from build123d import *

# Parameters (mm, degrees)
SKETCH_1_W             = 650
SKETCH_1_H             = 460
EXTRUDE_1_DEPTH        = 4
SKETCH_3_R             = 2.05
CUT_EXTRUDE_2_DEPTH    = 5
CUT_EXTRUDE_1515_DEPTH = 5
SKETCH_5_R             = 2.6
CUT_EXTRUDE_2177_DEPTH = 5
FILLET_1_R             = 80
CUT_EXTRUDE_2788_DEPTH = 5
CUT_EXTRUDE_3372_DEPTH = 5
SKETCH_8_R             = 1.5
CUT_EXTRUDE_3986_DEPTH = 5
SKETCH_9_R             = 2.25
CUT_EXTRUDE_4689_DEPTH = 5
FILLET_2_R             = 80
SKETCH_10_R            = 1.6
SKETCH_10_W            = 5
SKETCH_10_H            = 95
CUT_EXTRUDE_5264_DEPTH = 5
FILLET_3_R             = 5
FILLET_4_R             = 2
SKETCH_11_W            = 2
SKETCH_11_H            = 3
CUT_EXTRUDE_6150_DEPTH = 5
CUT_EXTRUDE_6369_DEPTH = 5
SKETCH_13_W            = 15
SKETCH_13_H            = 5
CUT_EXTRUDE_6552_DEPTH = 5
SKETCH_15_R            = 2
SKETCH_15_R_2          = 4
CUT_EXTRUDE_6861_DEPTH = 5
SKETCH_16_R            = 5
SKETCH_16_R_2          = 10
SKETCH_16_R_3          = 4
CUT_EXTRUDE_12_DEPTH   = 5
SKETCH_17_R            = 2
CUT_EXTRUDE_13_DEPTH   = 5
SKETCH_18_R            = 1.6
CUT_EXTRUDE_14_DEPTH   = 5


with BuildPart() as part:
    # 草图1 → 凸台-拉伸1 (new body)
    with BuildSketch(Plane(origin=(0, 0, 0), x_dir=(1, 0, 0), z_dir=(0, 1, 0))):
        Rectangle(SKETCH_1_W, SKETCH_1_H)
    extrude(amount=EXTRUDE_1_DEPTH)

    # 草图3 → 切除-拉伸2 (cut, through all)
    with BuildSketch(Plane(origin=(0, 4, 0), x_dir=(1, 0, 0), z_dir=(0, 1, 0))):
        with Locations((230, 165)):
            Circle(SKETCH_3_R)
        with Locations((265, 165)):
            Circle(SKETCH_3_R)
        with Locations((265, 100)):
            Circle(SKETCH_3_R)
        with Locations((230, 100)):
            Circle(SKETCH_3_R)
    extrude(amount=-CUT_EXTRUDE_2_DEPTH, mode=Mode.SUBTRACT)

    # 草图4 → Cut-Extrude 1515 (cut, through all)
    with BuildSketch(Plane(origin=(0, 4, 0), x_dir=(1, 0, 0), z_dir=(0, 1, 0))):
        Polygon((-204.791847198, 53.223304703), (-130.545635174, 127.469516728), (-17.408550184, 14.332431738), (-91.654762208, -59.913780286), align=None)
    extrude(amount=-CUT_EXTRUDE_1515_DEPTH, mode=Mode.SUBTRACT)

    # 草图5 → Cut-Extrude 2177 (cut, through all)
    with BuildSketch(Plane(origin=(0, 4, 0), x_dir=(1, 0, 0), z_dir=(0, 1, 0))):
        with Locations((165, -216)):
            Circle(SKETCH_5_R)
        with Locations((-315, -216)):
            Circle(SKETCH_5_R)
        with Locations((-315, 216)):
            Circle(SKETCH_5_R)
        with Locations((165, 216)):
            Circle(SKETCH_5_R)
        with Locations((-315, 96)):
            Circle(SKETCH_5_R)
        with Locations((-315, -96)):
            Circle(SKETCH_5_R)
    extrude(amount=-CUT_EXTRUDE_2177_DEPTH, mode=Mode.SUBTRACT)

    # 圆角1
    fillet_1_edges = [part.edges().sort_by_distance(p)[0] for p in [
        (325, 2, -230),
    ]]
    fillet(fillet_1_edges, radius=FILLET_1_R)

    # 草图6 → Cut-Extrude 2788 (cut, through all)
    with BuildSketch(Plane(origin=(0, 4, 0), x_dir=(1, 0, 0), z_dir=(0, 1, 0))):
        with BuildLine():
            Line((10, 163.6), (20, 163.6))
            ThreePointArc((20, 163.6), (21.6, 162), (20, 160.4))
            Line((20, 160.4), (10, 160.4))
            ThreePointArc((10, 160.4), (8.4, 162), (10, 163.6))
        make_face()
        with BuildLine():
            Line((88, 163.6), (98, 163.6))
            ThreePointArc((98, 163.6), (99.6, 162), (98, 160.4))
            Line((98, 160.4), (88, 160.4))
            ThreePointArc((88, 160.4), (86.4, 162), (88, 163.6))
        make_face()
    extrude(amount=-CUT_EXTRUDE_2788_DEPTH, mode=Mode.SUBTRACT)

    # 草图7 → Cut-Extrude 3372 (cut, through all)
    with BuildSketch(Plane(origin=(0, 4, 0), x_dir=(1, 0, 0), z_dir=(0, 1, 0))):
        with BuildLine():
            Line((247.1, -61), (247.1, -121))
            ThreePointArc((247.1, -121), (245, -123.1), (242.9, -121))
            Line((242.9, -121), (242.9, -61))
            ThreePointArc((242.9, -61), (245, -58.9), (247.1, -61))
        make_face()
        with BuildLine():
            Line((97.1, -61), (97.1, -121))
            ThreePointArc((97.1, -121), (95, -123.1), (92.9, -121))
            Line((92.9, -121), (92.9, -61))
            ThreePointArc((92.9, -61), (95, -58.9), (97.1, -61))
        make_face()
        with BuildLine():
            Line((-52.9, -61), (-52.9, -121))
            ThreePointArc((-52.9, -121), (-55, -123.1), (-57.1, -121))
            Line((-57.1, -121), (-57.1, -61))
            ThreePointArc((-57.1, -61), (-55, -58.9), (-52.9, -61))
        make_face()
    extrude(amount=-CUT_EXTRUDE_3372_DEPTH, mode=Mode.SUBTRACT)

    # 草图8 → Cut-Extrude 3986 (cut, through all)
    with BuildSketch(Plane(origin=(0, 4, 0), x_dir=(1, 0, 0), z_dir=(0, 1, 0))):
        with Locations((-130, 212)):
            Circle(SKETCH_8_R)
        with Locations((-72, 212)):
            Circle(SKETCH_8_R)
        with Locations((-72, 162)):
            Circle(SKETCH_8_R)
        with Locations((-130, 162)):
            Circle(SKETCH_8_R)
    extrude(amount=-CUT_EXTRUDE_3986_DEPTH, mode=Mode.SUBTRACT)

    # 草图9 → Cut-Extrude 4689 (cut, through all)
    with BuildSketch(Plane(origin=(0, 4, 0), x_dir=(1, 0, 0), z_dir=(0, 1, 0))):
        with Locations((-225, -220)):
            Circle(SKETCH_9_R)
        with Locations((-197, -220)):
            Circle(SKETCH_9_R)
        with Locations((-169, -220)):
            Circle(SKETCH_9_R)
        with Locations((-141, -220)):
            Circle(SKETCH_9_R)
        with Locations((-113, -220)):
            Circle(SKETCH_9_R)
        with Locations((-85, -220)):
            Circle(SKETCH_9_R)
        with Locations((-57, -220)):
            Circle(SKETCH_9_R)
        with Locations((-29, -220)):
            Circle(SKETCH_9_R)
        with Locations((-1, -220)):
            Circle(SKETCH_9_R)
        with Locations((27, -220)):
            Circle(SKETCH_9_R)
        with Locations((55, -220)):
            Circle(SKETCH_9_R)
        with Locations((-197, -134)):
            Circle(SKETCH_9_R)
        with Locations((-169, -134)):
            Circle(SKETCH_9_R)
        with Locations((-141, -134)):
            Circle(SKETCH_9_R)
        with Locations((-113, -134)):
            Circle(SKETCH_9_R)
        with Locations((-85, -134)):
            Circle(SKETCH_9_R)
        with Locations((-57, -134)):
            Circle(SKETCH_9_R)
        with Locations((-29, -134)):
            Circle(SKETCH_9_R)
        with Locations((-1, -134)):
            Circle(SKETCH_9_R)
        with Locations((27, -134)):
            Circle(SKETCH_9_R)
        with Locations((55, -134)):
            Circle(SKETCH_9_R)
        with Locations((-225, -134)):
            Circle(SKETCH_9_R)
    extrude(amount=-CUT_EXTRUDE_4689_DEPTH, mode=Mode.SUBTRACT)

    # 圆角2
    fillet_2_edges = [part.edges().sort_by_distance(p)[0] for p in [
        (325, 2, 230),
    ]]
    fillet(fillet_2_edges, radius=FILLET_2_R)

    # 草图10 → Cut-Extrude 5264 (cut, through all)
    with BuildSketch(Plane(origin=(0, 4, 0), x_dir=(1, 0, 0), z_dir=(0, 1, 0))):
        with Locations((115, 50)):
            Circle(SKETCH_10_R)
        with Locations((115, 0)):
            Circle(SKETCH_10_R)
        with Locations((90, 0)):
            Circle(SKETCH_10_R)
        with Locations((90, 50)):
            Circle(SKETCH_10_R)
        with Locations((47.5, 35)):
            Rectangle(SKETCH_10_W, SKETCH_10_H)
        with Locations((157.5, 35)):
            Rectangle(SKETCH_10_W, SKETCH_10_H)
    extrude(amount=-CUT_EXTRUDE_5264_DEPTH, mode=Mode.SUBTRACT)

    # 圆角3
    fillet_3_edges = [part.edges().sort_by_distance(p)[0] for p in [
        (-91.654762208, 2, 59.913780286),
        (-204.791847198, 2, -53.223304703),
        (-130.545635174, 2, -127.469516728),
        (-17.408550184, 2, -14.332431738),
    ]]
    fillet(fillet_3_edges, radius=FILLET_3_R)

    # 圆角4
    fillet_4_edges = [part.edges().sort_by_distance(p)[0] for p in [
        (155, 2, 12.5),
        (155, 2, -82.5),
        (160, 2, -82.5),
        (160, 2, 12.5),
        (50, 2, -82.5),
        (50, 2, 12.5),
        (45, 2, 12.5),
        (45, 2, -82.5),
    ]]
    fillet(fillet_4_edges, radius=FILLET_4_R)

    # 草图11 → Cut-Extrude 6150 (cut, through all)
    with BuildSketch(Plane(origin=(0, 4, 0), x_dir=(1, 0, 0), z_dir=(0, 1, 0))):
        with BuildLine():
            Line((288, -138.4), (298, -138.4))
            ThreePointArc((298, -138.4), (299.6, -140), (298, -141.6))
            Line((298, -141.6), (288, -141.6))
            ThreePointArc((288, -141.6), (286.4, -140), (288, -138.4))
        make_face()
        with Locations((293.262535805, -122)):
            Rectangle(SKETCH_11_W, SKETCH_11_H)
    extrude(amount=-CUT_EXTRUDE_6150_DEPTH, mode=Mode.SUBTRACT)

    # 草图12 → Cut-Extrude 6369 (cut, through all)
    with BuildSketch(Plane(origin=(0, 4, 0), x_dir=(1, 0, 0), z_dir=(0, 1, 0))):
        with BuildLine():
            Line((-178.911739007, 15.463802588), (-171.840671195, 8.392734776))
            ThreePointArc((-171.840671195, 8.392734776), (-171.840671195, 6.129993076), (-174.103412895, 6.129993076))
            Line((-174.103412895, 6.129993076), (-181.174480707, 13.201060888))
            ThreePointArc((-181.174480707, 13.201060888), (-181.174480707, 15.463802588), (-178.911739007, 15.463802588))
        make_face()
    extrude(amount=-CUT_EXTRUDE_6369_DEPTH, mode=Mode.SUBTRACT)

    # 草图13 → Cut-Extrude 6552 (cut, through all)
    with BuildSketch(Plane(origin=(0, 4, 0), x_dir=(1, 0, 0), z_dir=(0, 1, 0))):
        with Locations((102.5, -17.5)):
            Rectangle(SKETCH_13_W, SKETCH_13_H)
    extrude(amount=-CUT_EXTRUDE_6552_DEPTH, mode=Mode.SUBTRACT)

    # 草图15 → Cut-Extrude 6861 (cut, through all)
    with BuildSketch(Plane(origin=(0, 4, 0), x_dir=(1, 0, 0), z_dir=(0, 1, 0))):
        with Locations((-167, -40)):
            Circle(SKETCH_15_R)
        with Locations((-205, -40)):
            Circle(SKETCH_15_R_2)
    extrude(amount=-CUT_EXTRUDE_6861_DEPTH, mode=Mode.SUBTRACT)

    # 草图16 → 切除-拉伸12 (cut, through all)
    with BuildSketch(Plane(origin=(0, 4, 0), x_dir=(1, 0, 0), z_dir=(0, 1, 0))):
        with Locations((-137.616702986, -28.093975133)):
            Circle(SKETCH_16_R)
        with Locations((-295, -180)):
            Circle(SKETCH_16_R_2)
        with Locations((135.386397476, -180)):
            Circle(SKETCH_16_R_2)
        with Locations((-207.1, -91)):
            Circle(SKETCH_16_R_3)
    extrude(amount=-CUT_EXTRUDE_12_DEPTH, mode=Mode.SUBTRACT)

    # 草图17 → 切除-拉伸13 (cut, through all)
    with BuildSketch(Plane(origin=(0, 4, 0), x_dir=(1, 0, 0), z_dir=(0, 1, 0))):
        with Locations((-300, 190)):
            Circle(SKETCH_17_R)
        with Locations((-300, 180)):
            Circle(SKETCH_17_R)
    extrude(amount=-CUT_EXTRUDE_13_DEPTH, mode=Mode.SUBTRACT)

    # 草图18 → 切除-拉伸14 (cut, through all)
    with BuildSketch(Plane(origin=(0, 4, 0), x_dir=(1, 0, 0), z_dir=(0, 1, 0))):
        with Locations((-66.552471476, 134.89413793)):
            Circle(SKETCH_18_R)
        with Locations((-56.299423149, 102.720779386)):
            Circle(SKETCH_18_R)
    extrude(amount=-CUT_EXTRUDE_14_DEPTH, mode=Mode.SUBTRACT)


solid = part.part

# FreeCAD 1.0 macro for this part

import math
import FreeCAD as App
import Part
import Sketcher

V = App.Vector
Q = App.Units.Quantity


def edges_at(feature, points):
    """Names of the edges that pass closest to the given points."""
    edges = feature.Shape.Edges
    near = lambda p: min(range(len(edges)), key=lambda i: edges[i].distToShape(Part.Vertex(*p))[0])
    return sorted({f"Edge{near(p) + 1}" for p in points})


def add_polygon(sketch, points):
    """Adds a closed chain of lines whose ends are joined by coincident constraints."""
    first, n = sketch.GeometryCount, len(points)
    for a, b in zip(points, points[1:] + points[:1]):
        sketch.addGeometry(Part.LineSegment(App.Vector(*a, 0), App.Vector(*b, 0)), False)
    for i in range(n):
        sketch.addConstraint(Sketcher.Constraint("Coincident", first + i, 2, first + (i + 1) % n, 1))

doc = App.newDocument("Part")
params = doc.addObject("Spreadsheet::Sheet", "Params")
for row, (alias, value) in enumerate([
    ("sketch1_width", "650 mm"),
    ("sketch1_height", "460 mm"),
    ("pad1_length", "4 mm"),
    ("sketch2_diameter", "4.1 mm"),
    ("sketch3_length", "105 mm"),
    ("sketch3_length2", "160 mm"),
    ("sketch4_diameter", "5.2 mm"),
    ("fillet_radius", "80 mm"),
    ("sketch5_radius", "1.6 mm"),
    ("sketch5_width", "10 mm"),
    ("sketch6_radius", "2.1 mm"),
    ("sketch6_height", "60 mm"),
    ("sketch7_diameter", "3 mm"),
    ("sketch8_diameter", "4.5 mm"),
    ("fillet2_radius", "80 mm"),
    ("sketch9_diameter", "3.2 mm"),
    ("sketch9_width", "5 mm"),
    ("sketch9_height", "95 mm"),
    ("fillet3_radius", "5 mm"),
    ("fillet4_radius", "2 mm"),
    ("sketch10_radius", "1.6 mm"),
    ("sketch10_width", "10 mm"),
    ("sketch10_width2", "2 mm"),
    ("sketch10_height", "3 mm"),
    ("sketch11_radius", "1.6 mm"),
    ("sketch11_length", "10 mm"),
    ("sketch12_width", "15 mm"),
    ("sketch12_height", "5 mm"),
    ("sketch13_diameter", "4 mm"),
    ("sketch13_diameter2", "8 mm"),
    ("sketch14_diameter", "10 mm"),
    ("sketch14_diameter2", "20 mm"),
    ("sketch14_diameter3", "8 mm"),
    ("sketch15_diameter", "4 mm"),
    ("sketch16_diameter", "3.2 mm"),
], start=1):
    params.set(f"A{row}", alias)
    params.set(f"B{row}", "=" + value)
    params.setAlias(f"B{row}", alias)

body = doc.addObject("PartDesign::Body", "Body")

sketch1 = body.newObject("Sketcher::SketchObject", "Sketch")
sketch1.AttachmentSupport = (doc.getObject("XZ_Plane"), [""])
sketch1.MapMode = "FlatFace"
add_polygon(sketch1, [(-325, -230), (-325, 230), (325, 230), (325, -230)])
sketch1.addConstraint([
    Sketcher.Constraint("Vertical", 0),
    Sketcher.Constraint("Horizontal", 1),
    Sketcher.Constraint("Vertical", 2),
    Sketcher.Constraint("Horizontal", 3),
    Sketcher.Constraint("Symmetric", 0, 2, 2, 2, -1, 1),
    Sketcher.Constraint("DistanceX", 1, 1, 1, 2, 650.0),
    Sketcher.Constraint("DistanceY", 0, 1, 0, 2, 460.0),
])
sketch1.setExpression("Constraints[9]", "Params.sketch1_width")
sketch1.setExpression("Constraints[10]", "Params.sketch1_height")
pad1 = body.newObject("PartDesign::Pad", "Pad")
pad1.Profile = sketch1
pad1.setExpression("Length", "Params.pad1_length")
pad1.Reversed = True

sketch2 = body.newObject("Sketcher::SketchObject", "Sketch001")
sketch2.AttachmentSupport = (doc.getObject("XZ_Plane"), [""])
sketch2.MapMode = "FlatFace"
sketch2.AttachmentOffset = App.Placement(V(0, 0, -4), App.Rotation())
sketch2.addGeometry([
    Part.Circle(V(230, -165, 0), V(0, 0, 1), 2),
    Part.Circle(V(265, -165, 0), V(0, 0, 1), 2),
    Part.Circle(V(265, -100, 0), V(0, 0, 1), 2),
    Part.Circle(V(230, -100, 0), V(0, 0, 1), 2),
], False)
sketch2.addConstraint([
    Sketcher.Constraint("Equal", 0, 1),
    Sketcher.Constraint("Equal", 1, 2),
    Sketcher.Constraint("Equal", 2, 3),
    Sketcher.Constraint("Horizontal", 0, 3, 1, 3),
    Sketcher.Constraint("Horizontal", 2, 3, 3, 3),
    Sketcher.Constraint("Vertical", 1, 3, 2, 3),
    Sketcher.Constraint("Vertical", 0, 3, 3, 3),
    Sketcher.Constraint("Diameter", 0, 4.1),
    Sketcher.Constraint("DistanceX", -1, 1, 0, 3, 230.0),
    Sketcher.Constraint("DistanceY", 0, 3, -1, 1, 165.0),
    Sketcher.Constraint("DistanceX", -1, 1, 1, 3, 265.0),
    Sketcher.Constraint("DistanceY", 2, 3, -1, 1, 100.0),
])
sketch2.setExpression("Constraints[7]", "Params.sketch2_diameter")
pocket1 = body.newObject("PartDesign::Pocket", "Pocket")
pocket1.Profile = sketch2
pocket1.Type = "ThroughAll"
pocket1.Reversed = True

sketch3 = body.newObject("Sketcher::SketchObject", "Sketch002")
sketch3.AttachmentSupport = (doc.getObject("XZ_Plane"), [""])
sketch3.MapMode = "FlatFace"
sketch3.AttachmentOffset = App.Placement(V(0, 0, -4), App.Rotation())
add_polygon(sketch3, [(-131, -127), (-205, -53), (-92, 60), (-17, -14)])
sketch3.addConstraint([
    Sketcher.Constraint("Perpendicular", 0, 1),
    Sketcher.Constraint("Perpendicular", 1, 2),
    Sketcher.Constraint("Perpendicular", 2, 3),
    Sketcher.Constraint("Angle", 0, Q("135 deg")),
    Sketcher.Constraint("Distance", 0, 105.0),
    Sketcher.Constraint("Distance", 1, 160.0),
    Sketcher.Constraint("DistanceY", -1, 1, 1, 2, 59.91378),
    Sketcher.Constraint("DistanceX", 2, 2, -1, 1, 17.40855),
])
sketch3.setExpression("Constraints[8]", "Params.sketch3_length")
sketch3.setExpression("Constraints[9]", "Params.sketch3_length2")
pocket2 = body.newObject("PartDesign::Pocket", "Pocket001")
pocket2.Profile = sketch3
pocket2.Type = "ThroughAll"
pocket2.Reversed = True

sketch4 = body.newObject("Sketcher::SketchObject", "Sketch003")
sketch4.AttachmentSupport = (doc.getObject("XZ_Plane"), [""])
sketch4.MapMode = "FlatFace"
sketch4.AttachmentOffset = App.Placement(V(0, 0, -4), App.Rotation())
sketch4.addGeometry([
    Part.Circle(V(165, 216, 0), V(0, 0, 1), 2.6),
    Part.Circle(V(-315, 216, 0), V(0, 0, 1), 2.6),
    Part.Circle(V(-315, -216, 0), V(0, 0, 1), 2.6),
    Part.Circle(V(165, -216, 0), V(0, 0, 1), 2.6),
    Part.Circle(V(-315, -96, 0), V(0, 0, 1), 2.6),
    Part.Circle(V(-315, 96, 0), V(0, 0, 1), 2.6),
], False)
sketch4.addConstraint([
    Sketcher.Constraint("Equal", 0, 1),
    Sketcher.Constraint("Equal", 1, 2),
    Sketcher.Constraint("Equal", 2, 3),
    Sketcher.Constraint("Equal", 3, 4),
    Sketcher.Constraint("Equal", 4, 5),
    Sketcher.Constraint("Symmetric", 1, 3, 2, 3, -1),
    Sketcher.Constraint("Symmetric", 0, 3, 3, 3, -1),
    Sketcher.Constraint("Symmetric", 4, 3, 5, 3, -1),
    Sketcher.Constraint("Horizontal", 0, 3, 1, 3),
    Sketcher.Constraint("Vertical", 2, 3, 4, 3),
    Sketcher.Constraint("Diameter", 0, 5.2),
    Sketcher.Constraint("DistanceX", -1, 1, 0, 3, 165.0),
    Sketcher.Constraint("DistanceY", -1, 1, 0, 3, 216.0),
    Sketcher.Constraint("DistanceX", 1, 3, -1, 1, 315.0),
    Sketcher.Constraint("DistanceY", 4, 3, -1, 1, 96.0),
])
sketch4.setExpression("Constraints[10]", "Params.sketch4_diameter")
pocket3 = body.newObject("PartDesign::Pocket", "Pocket002")
pocket3.Profile = sketch4
pocket3.Type = "ThroughAll"
pocket3.Reversed = True
doc.recompute()

fillet = body.newObject("PartDesign::Fillet", "Fillet")
fillet.Base = (pocket3, edges_at(pocket3, [(325, 2, -230)]))
fillet.setExpression("Radius", "Params.fillet_radius")

sketch5 = body.newObject("Sketcher::SketchObject", "Sketch004")
sketch5.AttachmentSupport = (doc.getObject("XZ_Plane"), [""])
sketch5.MapMode = "FlatFace"
sketch5.AttachmentOffset = App.Placement(V(0, 0, -4), App.Rotation())
sketch5.addGeometry([
    Part.LineSegment(V(20, -163.6, 0), V(10, -163.6, 0)),
    Part.ArcOfCircle(Part.Circle(V(10, -162, 0), V(0, 0, 1), 1.6), math.radians(90), math.radians(270)),
    Part.LineSegment(V(10, -160.4, 0), V(20, -160.4, 0)),
    Part.ArcOfCircle(Part.Circle(V(20, -162, 0), V(0, 0, 1), 1.6), math.radians(-90), math.radians(90)),
    Part.LineSegment(V(98, -163.6, 0), V(88, -163.6, 0)),
    Part.ArcOfCircle(Part.Circle(V(88, -162, 0), V(0, 0, 1), 1.6), math.radians(90), math.radians(270)),
    Part.LineSegment(V(88, -160.4, 0), V(98, -160.4, 0)),
    Part.ArcOfCircle(Part.Circle(V(98, -162, 0), V(0, 0, 1), 1.6), math.radians(-90), math.radians(90)),
], False)
sketch5.addConstraint([
    Sketcher.Constraint("Tangent", 0, 2, 1, 2),
    Sketcher.Constraint("Tangent", 1, 1, 2, 1),
    Sketcher.Constraint("Tangent", 2, 2, 3, 2),
    Sketcher.Constraint("Tangent", 3, 1, 0, 1),
    Sketcher.Constraint("Tangent", 4, 2, 5, 2),
    Sketcher.Constraint("Tangent", 5, 1, 6, 1),
    Sketcher.Constraint("Tangent", 6, 2, 7, 2),
    Sketcher.Constraint("Tangent", 7, 1, 4, 1),
    Sketcher.Constraint("Horizontal", 0),
    Sketcher.Constraint("Horizontal", 2),
    Sketcher.Constraint("Horizontal", 4),
    Sketcher.Constraint("Horizontal", 6),
    Sketcher.Constraint("Equal", 3, 5),
    Sketcher.Constraint("Horizontal", 3, 3, 5, 3),
    Sketcher.Constraint("Equal", 2, 4),
    Sketcher.Constraint("Radius", 1, 1.6),
    Sketcher.Constraint("DistanceX", 0, 2, 0, 1, 10.0),
    Sketcher.Constraint("DistanceX", -1, 1, 1, 3, 10.0),
    Sketcher.Constraint("DistanceY", 1, 3, -1, 1, 162.0),
    Sketcher.Constraint("DistanceX", -1, 1, 5, 3, 88.0),
])
sketch5.setExpression("Constraints[15]", "Params.sketch5_radius")
sketch5.setExpression("Constraints[16]", "Params.sketch5_width")
pocket4 = body.newObject("PartDesign::Pocket", "Pocket003")
pocket4.Profile = sketch5
pocket4.Type = "ThroughAll"
pocket4.Reversed = True

sketch6 = body.newObject("Sketcher::SketchObject", "Sketch005")
sketch6.AttachmentSupport = (doc.getObject("XZ_Plane"), [""])
sketch6.MapMode = "FlatFace"
sketch6.AttachmentOffset = App.Placement(V(0, 0, -4), App.Rotation())
sketch6.addGeometry([
    Part.LineSegment(V(247.1, 121, 0), V(247.1, 61, 0)),
    Part.ArcOfCircle(Part.Circle(V(245, 61, 0), V(0, 0, 1), 2.1), math.radians(180), math.radians(360)),
    Part.LineSegment(V(242.9, 61, 0), V(242.9, 121, 0)),
    Part.ArcOfCircle(Part.Circle(V(245, 121, 0), V(0, 0, 1), 2.1), math.radians(0), math.radians(180)),
    Part.LineSegment(V(97.1, 121, 0), V(97.1, 61, 0)),
    Part.ArcOfCircle(Part.Circle(V(95, 61, 0), V(0, 0, 1), 2.1), math.radians(180), math.radians(360)),
    Part.LineSegment(V(92.9, 61, 0), V(92.9, 121, 0)),
    Part.ArcOfCircle(Part.Circle(V(95, 121, 0), V(0, 0, 1), 2.1), math.radians(0), math.radians(180)),
    Part.LineSegment(V(-52.9, 121, 0), V(-52.9, 61, 0)),
    Part.ArcOfCircle(Part.Circle(V(-55, 61, 0), V(0, 0, 1), 2.1), math.radians(180), math.radians(360)),
    Part.LineSegment(V(-57.1, 61, 0), V(-57.1, 121, 0)),
    Part.ArcOfCircle(Part.Circle(V(-55, 121, 0), V(0, 0, 1), 2.1), math.radians(0), math.radians(180)),
], False)
sketch6.addConstraint([
    Sketcher.Constraint("Tangent", 0, 2, 1, 2),
    Sketcher.Constraint("Tangent", 1, 1, 2, 1),
    Sketcher.Constraint("Tangent", 2, 2, 3, 2),
    Sketcher.Constraint("Tangent", 3, 1, 0, 1),
    Sketcher.Constraint("Tangent", 4, 2, 5, 2),
    Sketcher.Constraint("Tangent", 5, 1, 6, 1),
    Sketcher.Constraint("Tangent", 6, 2, 7, 2),
    Sketcher.Constraint("Tangent", 7, 1, 4, 1),
    Sketcher.Constraint("Tangent", 8, 2, 9, 2),
    Sketcher.Constraint("Tangent", 9, 1, 10, 1),
    Sketcher.Constraint("Tangent", 10, 2, 11, 2),
    Sketcher.Constraint("Tangent", 11, 1, 8, 1),
    Sketcher.Constraint("Vertical", 0),
    Sketcher.Constraint("Vertical", 2),
    Sketcher.Constraint("Vertical", 4),
    Sketcher.Constraint("Vertical", 6),
    Sketcher.Constraint("Vertical", 8),
    Sketcher.Constraint("Vertical", 10),
    Sketcher.Constraint("Equal", 3, 5),
    Sketcher.Constraint("Equal", 7, 9),
    Sketcher.Constraint("Horizontal", 1, 3, 5, 3),
    Sketcher.Constraint("Horizontal", 3, 3, 7, 3),
    Sketcher.Constraint("Horizontal", 5, 3, 9, 3),
    Sketcher.Constraint("Horizontal", 7, 3, 11, 3),
    Sketcher.Constraint("Radius", 1, 2.1),
    Sketcher.Constraint("DistanceY", 0, 2, 0, 1, 60.0),
    Sketcher.Constraint("DistanceX", -1, 1, 1, 3, 245.0),
    Sketcher.Constraint("DistanceY", -1, 1, 1, 3, 61.0),
    Sketcher.Constraint("DistanceX", -1, 1, 5, 3, 95.0),
    Sketcher.Constraint("DistanceX", 9, 3, -1, 1, 55.0),
])
sketch6.setExpression("Constraints[24]", "Params.sketch6_radius")
sketch6.setExpression("Constraints[25]", "Params.sketch6_height")
pocket5 = body.newObject("PartDesign::Pocket", "Pocket004")
pocket5.Profile = sketch6
pocket5.Type = "ThroughAll"
pocket5.Reversed = True

sketch7 = body.newObject("Sketcher::SketchObject", "Sketch006")
sketch7.AttachmentSupport = (doc.getObject("XZ_Plane"), [""])
sketch7.MapMode = "FlatFace"
sketch7.AttachmentOffset = App.Placement(V(0, 0, -4), App.Rotation())
sketch7.addGeometry([
    Part.Circle(V(-130, -212, 0), V(0, 0, 1), 1.5),
    Part.Circle(V(-72, -212, 0), V(0, 0, 1), 1.5),
    Part.Circle(V(-72, -162, 0), V(0, 0, 1), 1.5),
    Part.Circle(V(-130, -162, 0), V(0, 0, 1), 1.5),
], False)
sketch7.addConstraint([
    Sketcher.Constraint("Equal", 0, 1),
    Sketcher.Constraint("Equal", 1, 2),
    Sketcher.Constraint("Equal", 2, 3),
    Sketcher.Constraint("Horizontal", 0, 3, 1, 3),
    Sketcher.Constraint("Horizontal", 2, 3, 3, 3),
    Sketcher.Constraint("Vertical", 1, 3, 2, 3),
    Sketcher.Constraint("Vertical", 0, 3, 3, 3),
    Sketcher.Constraint("Diameter", 0, 3.0),
    Sketcher.Constraint("DistanceX", 0, 3, -1, 1, 130.0),
    Sketcher.Constraint("DistanceY", 0, 3, -1, 1, 212.0),
    Sketcher.Constraint("DistanceX", 1, 3, -1, 1, 72.0),
    Sketcher.Constraint("DistanceY", 2, 3, -1, 1, 162.0),
])
sketch7.setExpression("Constraints[7]", "Params.sketch7_diameter")
pocket6 = body.newObject("PartDesign::Pocket", "Pocket005")
pocket6.Profile = sketch7
pocket6.Type = "ThroughAll"
pocket6.Reversed = True

sketch8 = body.newObject("Sketcher::SketchObject", "Sketch007")
sketch8.AttachmentSupport = (doc.getObject("XZ_Plane"), [""])
sketch8.MapMode = "FlatFace"
sketch8.AttachmentOffset = App.Placement(V(0, 0, -4), App.Rotation())
sketch8.addGeometry([
    Part.Circle(V(-225, 220, 0), V(0, 0, 1), 2.2),
    Part.Circle(V(-197, 220, 0), V(0, 0, 1), 2.2),
    Part.Circle(V(-169, 220, 0), V(0, 0, 1), 2.2),
    Part.Circle(V(-141, 220, 0), V(0, 0, 1), 2.2),
    Part.Circle(V(-113, 220, 0), V(0, 0, 1), 2.2),
    Part.Circle(V(-85, 220, 0), V(0, 0, 1), 2.2),
    Part.Circle(V(-57, 220, 0), V(0, 0, 1), 2.2),
    Part.Circle(V(-29, 220, 0), V(0, 0, 1), 2.2),
    Part.Circle(V(-1, 220, 0), V(0, 0, 1), 2.2),
    Part.Circle(V(27, 220, 0), V(0, 0, 1), 2.2),
    Part.Circle(V(55, 220, 0), V(0, 0, 1), 2.2),
    Part.Circle(V(-197, 134, 0), V(0, 0, 1), 2.2),
    Part.Circle(V(-169, 134, 0), V(0, 0, 1), 2.2),
    Part.Circle(V(-141, 134, 0), V(0, 0, 1), 2.2),
    Part.Circle(V(-113, 134, 0), V(0, 0, 1), 2.2),
    Part.Circle(V(-85, 134, 0), V(0, 0, 1), 2.2),
    Part.Circle(V(-57, 134, 0), V(0, 0, 1), 2.2),
    Part.Circle(V(-29, 134, 0), V(0, 0, 1), 2.2),
    Part.Circle(V(-1, 134, 0), V(0, 0, 1), 2.2),
    Part.Circle(V(27, 134, 0), V(0, 0, 1), 2.2),
    Part.Circle(V(55, 134, 0), V(0, 0, 1), 2.2),
    Part.Circle(V(-225, 134, 0), V(0, 0, 1), 2.2),
], False)
sketch8.addConstraint([
    Sketcher.Constraint("Equal", 0, 1),
    Sketcher.Constraint("Equal", 1, 2),
    Sketcher.Constraint("Equal", 2, 3),
    Sketcher.Constraint("Equal", 3, 4),
    Sketcher.Constraint("Equal", 4, 5),
    Sketcher.Constraint("Equal", 5, 6),
    Sketcher.Constraint("Equal", 6, 7),
    Sketcher.Constraint("Equal", 7, 8),
    Sketcher.Constraint("Equal", 8, 9),
    Sketcher.Constraint("Equal", 9, 10),
    Sketcher.Constraint("Equal", 10, 11),
    Sketcher.Constraint("Equal", 11, 12),
    Sketcher.Constraint("Equal", 12, 13),
    Sketcher.Constraint("Equal", 13, 14),
    Sketcher.Constraint("Equal", 14, 15),
    Sketcher.Constraint("Equal", 15, 16),
    Sketcher.Constraint("Equal", 16, 17),
    Sketcher.Constraint("Equal", 17, 18),
    Sketcher.Constraint("Equal", 18, 19),
    Sketcher.Constraint("Equal", 19, 20),
    Sketcher.Constraint("Equal", 20, 21),
    Sketcher.Constraint("Horizontal", 0, 3, 1, 3),
    Sketcher.Constraint("Horizontal", 1, 3, 2, 3),
    Sketcher.Constraint("Horizontal", 2, 3, 3, 3),
    Sketcher.Constraint("Horizontal", 3, 3, 4, 3),
    Sketcher.Constraint("Horizontal", 4, 3, 5, 3),
    Sketcher.Constraint("Horizontal", 5, 3, 6, 3),
    Sketcher.Constraint("Horizontal", 6, 3, 7, 3),
    Sketcher.Constraint("Horizontal", 7, 3, 8, 3),
    Sketcher.Constraint("Horizontal", 8, 3, 9, 3),
    Sketcher.Constraint("Horizontal", 9, 3, 10, 3),
    Sketcher.Constraint("Horizontal", 11, 3, 12, 3),
    Sketcher.Constraint("Horizontal", 12, 3, 13, 3),
    Sketcher.Constraint("Horizontal", 13, 3, 14, 3),
    Sketcher.Constraint("Horizontal", 14, 3, 15, 3),
    Sketcher.Constraint("Horizontal", 15, 3, 16, 3),
    Sketcher.Constraint("Horizontal", 16, 3, 17, 3),
    Sketcher.Constraint("Horizontal", 17, 3, 18, 3),
    Sketcher.Constraint("Horizontal", 18, 3, 19, 3),
    Sketcher.Constraint("Horizontal", 19, 3, 20, 3),
    Sketcher.Constraint("Horizontal", 20, 3, 21, 3),
    Sketcher.Constraint("Vertical", 1, 3, 11, 3),
    Sketcher.Constraint("Vertical", 2, 3, 12, 3),
    Sketcher.Constraint("Vertical", 3, 3, 13, 3),
    Sketcher.Constraint("Vertical", 4, 3, 14, 3),
    Sketcher.Constraint("Vertical", 5, 3, 15, 3),
    Sketcher.Constraint("Vertical", 6, 3, 16, 3),
    Sketcher.Constraint("Vertical", 7, 3, 17, 3),
    Sketcher.Constraint("Vertical", 8, 3, 18, 3),
    Sketcher.Constraint("Vertical", 9, 3, 19, 3),
    Sketcher.Constraint("Vertical", 10, 3, 20, 3),
    Sketcher.Constraint("Vertical", 0, 3, 21, 3),
    Sketcher.Constraint("Diameter", 0, 4.5),
    Sketcher.Constraint("DistanceX", 0, 3, -1, 1, 225.0),
    Sketcher.Constraint("DistanceY", -1, 1, 0, 3, 220.0),
    Sketcher.Constraint("DistanceX", 1, 3, -1, 1, 197.0),
    Sketcher.Constraint("DistanceX", 2, 3, -1, 1, 169.0),
    Sketcher.Constraint("DistanceX", 3, 3, -1, 1, 141.0),
    Sketcher.Constraint("DistanceX", 4, 3, -1, 1, 113.0),
    Sketcher.Constraint("DistanceX", 5, 3, -1, 1, 85.0),
    Sketcher.Constraint("DistanceX", 6, 3, -1, 1, 57.0),
    Sketcher.Constraint("DistanceX", 7, 3, -1, 1, 29.0),
    Sketcher.Constraint("DistanceX", 8, 3, -1, 1, 1.0),
    Sketcher.Constraint("DistanceX", -1, 1, 9, 3, 27.0),
    Sketcher.Constraint("DistanceX", -1, 1, 10, 3, 55.0),
    Sketcher.Constraint("DistanceY", -1, 1, 11, 3, 134.0),
])
sketch8.setExpression("Constraints[52]", "Params.sketch8_diameter")
pocket7 = body.newObject("PartDesign::Pocket", "Pocket006")
pocket7.Profile = sketch8
pocket7.Type = "ThroughAll"
pocket7.Reversed = True
doc.recompute()

fillet2 = body.newObject("PartDesign::Fillet", "Fillet001")
fillet2.Base = (pocket7, edges_at(pocket7, [(325, 2, 230)]))
fillet2.setExpression("Radius", "Params.fillet2_radius")

sketch9 = body.newObject("Sketcher::SketchObject", "Sketch008")
sketch9.AttachmentSupport = (doc.getObject("XZ_Plane"), [""])
sketch9.MapMode = "FlatFace"
sketch9.AttachmentOffset = App.Placement(V(0, 0, -4), App.Rotation())
sketch9.addGeometry(Part.Circle(V(115, -50, 0), V(0, 0, 1), 1.6), False)
sketch9.addGeometry(Part.Circle(V(115, 0, 0), V(0, 0, 1), 1.6), False)
sketch9.addGeometry(Part.Circle(V(90, 0, 0), V(0, 0, 1), 1.6), False)
sketch9.addGeometry(Part.Circle(V(90, -50, 0), V(0, 0, 1), 1.6), False)
add_polygon(sketch9, [(45, -82.5), (45, 12.5), (50, 12.5), (50, -82.5)])
add_polygon(sketch9, [(155, -82.5), (155, 12.5), (160, 12.5), (160, -82.5)])
sketch9.addConstraint([
    Sketcher.Constraint("Vertical", 4),
    Sketcher.Constraint("Horizontal", 5),
    Sketcher.Constraint("Vertical", 6),
    Sketcher.Constraint("Horizontal", 7),
    Sketcher.Constraint("Vertical", 8),
    Sketcher.Constraint("Horizontal", 9),
    Sketcher.Constraint("Vertical", 10),
    Sketcher.Constraint("Horizontal", 11),
    Sketcher.Constraint("Equal", 0, 1),
    Sketcher.Constraint("Equal", 1, 2),
    Sketcher.Constraint("Equal", 2, 3),
    Sketcher.Constraint("PointOnObject", 1, 3, -1),
    Sketcher.Constraint("PointOnObject", 2, 3, -1),
    Sketcher.Constraint("Horizontal", 0, 3, 3, 3),
    Sketcher.Constraint("Horizontal", 5, 2, 8, 2),
    Sketcher.Constraint("Horizontal", 7, 2, 10, 2),
    Sketcher.Constraint("Vertical", 0, 3, 1, 3),
    Sketcher.Constraint("Vertical", 2, 3, 3, 3),
    Sketcher.Constraint("Equal", 7, 9),
    Sketcher.Constraint("Diameter", 0, 3.2),
    Sketcher.Constraint("DistanceX", 5, 1, 5, 2, 5.0),
    Sketcher.Constraint("DistanceY", 4, 1, 4, 2, 95.0),
    Sketcher.Constraint("DistanceX", -1, 1, 0, 3, 115.0),
    Sketcher.Constraint("DistanceY", 0, 3, -1, 1, 50.0),
    Sketcher.Constraint("DistanceX", -1, 1, 2, 3, 90.0),
    Sketcher.Constraint("DistanceX", -1, 1, 4, 2, 45.0),
    Sketcher.Constraint("DistanceX", -1, 1, 8, 2, 155.0),
    Sketcher.Constraint("DistanceY", -1, 1, 4, 2, 12.5),
])
sketch9.setExpression("Constraints[27]", "Params.sketch9_diameter")
sketch9.setExpression("Constraints[28]", "Params.sketch9_width")
sketch9.setExpression("Constraints[29]", "Params.sketch9_height")
pocket8 = body.newObject("PartDesign::Pocket", "Pocket007")
pocket8.Profile = sketch9
pocket8.Type = "ThroughAll"
pocket8.Reversed = True
doc.recompute()

fillet3 = body.newObject("PartDesign::Fillet", "Fillet002")
fillet3.Base = (pocket8, edges_at(pocket8, [
    (-91.655, 2, 59.914),
    (-204.792, 2, -53.223),
    (-130.546, 2, -127.47),
    (-17.409, 2, -14.332),
]))
fillet3.setExpression("Radius", "Params.fillet3_radius")
doc.recompute()

fillet4 = body.newObject("PartDesign::Fillet", "Fillet003")
fillet4.Base = (fillet3, edges_at(fillet3, [
    (155, 2, 12.5),
    (155, 2, -82.5),
    (160, 2, -82.5),
    (160, 2, 12.5),
    (50, 2, -82.5),
    (50, 2, 12.5),
    (45, 2, 12.5),
    (45, 2, -82.5),
]))
fillet4.setExpression("Radius", "Params.fillet4_radius")

sketch10 = body.newObject("Sketcher::SketchObject", "Sketch009")
sketch10.AttachmentSupport = (doc.getObject("XZ_Plane"), [""])
sketch10.MapMode = "FlatFace"
sketch10.AttachmentOffset = App.Placement(V(0, 0, -4), App.Rotation())
sketch10.addGeometry(Part.LineSegment(V(298, 138.4, 0), V(288, 138.4, 0)), False)
sketch10.addGeometry(Part.ArcOfCircle(Part.Circle(V(288, 140, 0), V(0, 0, 1), 1.6), math.radians(90), math.radians(270)), False)
sketch10.addGeometry(Part.LineSegment(V(288, 141.6, 0), V(298, 141.6, 0)), False)
sketch10.addGeometry(Part.ArcOfCircle(Part.Circle(V(298, 140, 0), V(0, 0, 1), 1.6), math.radians(-90), math.radians(90)), False)
add_polygon(sketch10, [(292.3, 120.5), (292.3, 123.5), (294.3, 123.5), (294.3, 120.5)])
sketch10.addConstraint([
    Sketcher.Constraint("Tangent", 0, 2, 1, 2),
    Sketcher.Constraint("Tangent", 1, 1, 2, 1),
    Sketcher.Constraint("Tangent", 2, 2, 3, 2),
    Sketcher.Constraint("Tangent", 3, 1, 0, 1),
    Sketcher.Constraint("Horizontal", 0),
    Sketcher.Constraint("Horizontal", 2),
    Sketcher.Constraint("Vertical", 4),
    Sketcher.Constraint("Horizontal", 5),
    Sketcher.Constraint("Vertical", 6),
    Sketcher.Constraint("Horizontal", 7),
    Sketcher.Constraint("Radius", 1, 1.6),
    Sketcher.Constraint("DistanceX", 0, 2, 0, 1, 10.0),
    Sketcher.Constraint("DistanceX", 5, 1, 5, 2, 2.0),
    Sketcher.Constraint("DistanceY", 4, 1, 4, 2, 3.0),
    Sketcher.Constraint("DistanceX", -1, 1, 1, 3, 288.0),
    Sketcher.Constraint("DistanceY", -1, 1, 1, 3, 140.0),
    Sketcher.Constraint("DistanceY", -1, 1, 4, 2, 123.5),
    Sketcher.Constraint("DistanceX", -1, 1, 4, 2, 292.262536),
])
sketch10.setExpression("Constraints[14]", "Params.sketch10_radius")
sketch10.setExpression("Constraints[15]", "Params.sketch10_width")
sketch10.setExpression("Constraints[16]", "Params.sketch10_width2")
sketch10.setExpression("Constraints[17]", "Params.sketch10_height")
pocket9 = body.newObject("PartDesign::Pocket", "Pocket008")
pocket9.Profile = sketch10
pocket9.Type = "ThroughAll"
pocket9.Reversed = True

sketch11 = body.newObject("Sketcher::SketchObject", "Sketch010")
sketch11.AttachmentSupport = (doc.getObject("XZ_Plane"), [""])
sketch11.MapMode = "FlatFace"
sketch11.AttachmentOffset = App.Placement(V(0, 0, -4), App.Rotation())
sketch11.addGeometry([
    Part.LineSegment(V(-171.8, -8.4, 0), V(-178.9, -15.5, 0)),
    Part.ArcOfCircle(Part.Circle(V(-180, -14.3, 0), V(0, 0, 1), 1.6), math.radians(135), math.radians(315)),
    Part.LineSegment(V(-181.2, -13.2, 0), V(-174.1, -6.1, 0)),
    Part.ArcOfCircle(Part.Circle(V(-173, -7.3, 0), V(0, 0, 1), 1.6), math.radians(-45), math.radians(135)),
], False)
sketch11.addConstraint([
    Sketcher.Constraint("Tangent", 0, 2, 1, 2),
    Sketcher.Constraint("Tangent", 1, 1, 2, 1),
    Sketcher.Constraint("Tangent", 2, 2, 3, 2),
    Sketcher.Constraint("Tangent", 3, 1, 0, 1),
    Sketcher.Constraint("Equal", 1, 3),
    Sketcher.Constraint("Radius", 1, 1.6),
    Sketcher.Constraint("Angle", 0, Q("-135 deg")),
    Sketcher.Constraint("Distance", 0, 10.0),
    Sketcher.Constraint("DistanceX", 1, 3, -1, 1, 180.04311),
    Sketcher.Constraint("DistanceY", 1, 3, -1, 1, 14.332432),
])
sketch11.setExpression("Constraints[5]", "Params.sketch11_radius")
sketch11.setExpression("Constraints[7]", "Params.sketch11_length")
pocket10 = body.newObject("PartDesign::Pocket", "Pocket009")
pocket10.Profile = sketch11
pocket10.Type = "ThroughAll"
pocket10.Reversed = True

sketch12 = body.newObject("Sketcher::SketchObject", "Sketch011")
sketch12.AttachmentSupport = (doc.getObject("XZ_Plane"), [""])
sketch12.MapMode = "FlatFace"
sketch12.AttachmentOffset = App.Placement(V(0, 0, -4), App.Rotation())
add_polygon(sketch12, [(95, 15), (95, 20), (110, 20), (110, 15)])
sketch12.addConstraint([
    Sketcher.Constraint("Vertical", 0),
    Sketcher.Constraint("Horizontal", 1),
    Sketcher.Constraint("Vertical", 2),
    Sketcher.Constraint("Horizontal", 3),
    Sketcher.Constraint("DistanceX", 1, 1, 1, 2, 15.0),
    Sketcher.Constraint("DistanceY", 0, 1, 0, 2, 5.0),
    Sketcher.Constraint("DistanceX", -1, 1, 0, 2, 95.0),
    Sketcher.Constraint("DistanceY", -1, 1, 0, 2, 20.0),
])
sketch12.setExpression("Constraints[8]", "Params.sketch12_width")
sketch12.setExpression("Constraints[9]", "Params.sketch12_height")
pocket11 = body.newObject("PartDesign::Pocket", "Pocket010")
pocket11.Profile = sketch12
pocket11.Type = "ThroughAll"
pocket11.Reversed = True

sketch13 = body.newObject("Sketcher::SketchObject", "Sketch012")
sketch13.AttachmentSupport = (doc.getObject("XZ_Plane"), [""])
sketch13.MapMode = "FlatFace"
sketch13.AttachmentOffset = App.Placement(V(0, 0, -4), App.Rotation())
sketch13.addGeometry([
    Part.Circle(V(-167, 40, 0), V(0, 0, 1), 2),
    Part.Circle(V(-205, 40, 0), V(0, 0, 1), 4),
], False)
sketch13.addConstraint([
    Sketcher.Constraint("Horizontal", 0, 3, 1, 3),
    Sketcher.Constraint("Diameter", 0, 4.0),
    Sketcher.Constraint("Diameter", 1, 8.0),
    Sketcher.Constraint("DistanceX", 0, 3, -1, 1, 167.0),
    Sketcher.Constraint("DistanceY", -1, 1, 0, 3, 40.0),
    Sketcher.Constraint("DistanceX", 1, 3, -1, 1, 205.0),
])
sketch13.setExpression("Constraints[1]", "Params.sketch13_diameter")
sketch13.setExpression("Constraints[2]", "Params.sketch13_diameter2")
pocket12 = body.newObject("PartDesign::Pocket", "Pocket011")
pocket12.Profile = sketch13
pocket12.Type = "ThroughAll"
pocket12.Reversed = True

sketch14 = body.newObject("Sketcher::SketchObject", "Sketch013")
sketch14.AttachmentSupport = (doc.getObject("XZ_Plane"), [""])
sketch14.MapMode = "FlatFace"
sketch14.AttachmentOffset = App.Placement(V(0, 0, -4), App.Rotation())
sketch14.addGeometry([
    Part.Circle(V(-137.6, 28.1, 0), V(0, 0, 1), 5),
    Part.Circle(V(-295, 180, 0), V(0, 0, 1), 10),
    Part.Circle(V(135.4, 180, 0), V(0, 0, 1), 10),
    Part.Circle(V(-207.1, 91, 0), V(0, 0, 1), 4),
], False)
sketch14.addConstraint([
    Sketcher.Constraint("Equal", 1, 2),
    Sketcher.Constraint("Horizontal", 1, 3, 2, 3),
    Sketcher.Constraint("Diameter", 0, 10.0),
    Sketcher.Constraint("Diameter", 1, 20.0),
    Sketcher.Constraint("Diameter", 3, 8.0),
    Sketcher.Constraint("DistanceX", 1, 3, -1, 1, 295.0),
    Sketcher.Constraint("DistanceY", -1, 1, 1, 3, 180.0),
    Sketcher.Constraint("DistanceY", -1, 1, 3, 3, 91.0),
    Sketcher.Constraint("DistanceX", 3, 3, -1, 1, 207.1),
    Sketcher.Constraint("DistanceX", 0, 3, 2, 3, 273.0031),
    Sketcher.Constraint("DistanceX", 0, 3, -1, 1, 137.616703),
    Sketcher.Constraint("DistanceY", -1, 1, 0, 3, 28.093975),
])
sketch14.setExpression("Constraints[2]", "Params.sketch14_diameter")
sketch14.setExpression("Constraints[3]", "Params.sketch14_diameter2")
sketch14.setExpression("Constraints[4]", "Params.sketch14_diameter3")
pocket13 = body.newObject("PartDesign::Pocket", "Pocket012")
pocket13.Profile = sketch14
pocket13.Type = "ThroughAll"
pocket13.Reversed = True

sketch15 = body.newObject("Sketcher::SketchObject", "Sketch014")
sketch15.AttachmentSupport = (doc.getObject("XZ_Plane"), [""])
sketch15.MapMode = "FlatFace"
sketch15.AttachmentOffset = App.Placement(V(0, 0, -4), App.Rotation())
sketch15.addGeometry([
    Part.Circle(V(-300, -190, 0), V(0, 0, 1), 2),
    Part.Circle(V(-300, -180, 0), V(0, 0, 1), 2),
], False)
sketch15.addConstraint([
    Sketcher.Constraint("Equal", 0, 1),
    Sketcher.Constraint("Vertical", 0, 3, 1, 3),
    Sketcher.Constraint("Diameter", 0, 4.0),
    Sketcher.Constraint("DistanceX", 0, 3, -1, 1, 300.0),
    Sketcher.Constraint("DistanceY", 0, 3, -1, 1, 190.0),
    Sketcher.Constraint("DistanceY", 1, 3, -1, 1, 180.0),
])
sketch15.setExpression("Constraints[2]", "Params.sketch15_diameter")
pocket14 = body.newObject("PartDesign::Pocket", "Pocket013")
pocket14.Profile = sketch15
pocket14.Type = "ThroughAll"
pocket14.Reversed = True

sketch16 = body.newObject("Sketcher::SketchObject", "Sketch015")
sketch16.AttachmentSupport = (doc.getObject("XZ_Plane"), [""])
sketch16.MapMode = "FlatFace"
sketch16.AttachmentOffset = App.Placement(V(0, 0, -4), App.Rotation())
sketch16.addGeometry([
    Part.Circle(V(-66.6, -134.9, 0), V(0, 0, 1), 1.6),
    Part.Circle(V(-56.3, -102.7, 0), V(0, 0, 1), 1.6),
], False)
sketch16.addConstraint([
    Sketcher.Constraint("Equal", 0, 1),
    Sketcher.Constraint("Diameter", 0, 3.2),
    Sketcher.Constraint("DistanceX", 0, 3, -1, 1, 66.552471),
    Sketcher.Constraint("DistanceY", 1, 3, -1, 1, 102.720779),
    Sketcher.Constraint("DistanceX", 0, 3, 1, 3, 10.253048),
    Sketcher.Constraint("DistanceY", 0, 3, 1, 3, 32.173359),
])
sketch16.setExpression("Constraints[1]", "Params.sketch16_diameter")
pocket15 = body.newObject("PartDesign::Pocket", "Pocket014")
pocket15.Profile = sketch16
pocket15.Type = "ThroughAll"
pocket15.Reversed = True

doc.recompute()
